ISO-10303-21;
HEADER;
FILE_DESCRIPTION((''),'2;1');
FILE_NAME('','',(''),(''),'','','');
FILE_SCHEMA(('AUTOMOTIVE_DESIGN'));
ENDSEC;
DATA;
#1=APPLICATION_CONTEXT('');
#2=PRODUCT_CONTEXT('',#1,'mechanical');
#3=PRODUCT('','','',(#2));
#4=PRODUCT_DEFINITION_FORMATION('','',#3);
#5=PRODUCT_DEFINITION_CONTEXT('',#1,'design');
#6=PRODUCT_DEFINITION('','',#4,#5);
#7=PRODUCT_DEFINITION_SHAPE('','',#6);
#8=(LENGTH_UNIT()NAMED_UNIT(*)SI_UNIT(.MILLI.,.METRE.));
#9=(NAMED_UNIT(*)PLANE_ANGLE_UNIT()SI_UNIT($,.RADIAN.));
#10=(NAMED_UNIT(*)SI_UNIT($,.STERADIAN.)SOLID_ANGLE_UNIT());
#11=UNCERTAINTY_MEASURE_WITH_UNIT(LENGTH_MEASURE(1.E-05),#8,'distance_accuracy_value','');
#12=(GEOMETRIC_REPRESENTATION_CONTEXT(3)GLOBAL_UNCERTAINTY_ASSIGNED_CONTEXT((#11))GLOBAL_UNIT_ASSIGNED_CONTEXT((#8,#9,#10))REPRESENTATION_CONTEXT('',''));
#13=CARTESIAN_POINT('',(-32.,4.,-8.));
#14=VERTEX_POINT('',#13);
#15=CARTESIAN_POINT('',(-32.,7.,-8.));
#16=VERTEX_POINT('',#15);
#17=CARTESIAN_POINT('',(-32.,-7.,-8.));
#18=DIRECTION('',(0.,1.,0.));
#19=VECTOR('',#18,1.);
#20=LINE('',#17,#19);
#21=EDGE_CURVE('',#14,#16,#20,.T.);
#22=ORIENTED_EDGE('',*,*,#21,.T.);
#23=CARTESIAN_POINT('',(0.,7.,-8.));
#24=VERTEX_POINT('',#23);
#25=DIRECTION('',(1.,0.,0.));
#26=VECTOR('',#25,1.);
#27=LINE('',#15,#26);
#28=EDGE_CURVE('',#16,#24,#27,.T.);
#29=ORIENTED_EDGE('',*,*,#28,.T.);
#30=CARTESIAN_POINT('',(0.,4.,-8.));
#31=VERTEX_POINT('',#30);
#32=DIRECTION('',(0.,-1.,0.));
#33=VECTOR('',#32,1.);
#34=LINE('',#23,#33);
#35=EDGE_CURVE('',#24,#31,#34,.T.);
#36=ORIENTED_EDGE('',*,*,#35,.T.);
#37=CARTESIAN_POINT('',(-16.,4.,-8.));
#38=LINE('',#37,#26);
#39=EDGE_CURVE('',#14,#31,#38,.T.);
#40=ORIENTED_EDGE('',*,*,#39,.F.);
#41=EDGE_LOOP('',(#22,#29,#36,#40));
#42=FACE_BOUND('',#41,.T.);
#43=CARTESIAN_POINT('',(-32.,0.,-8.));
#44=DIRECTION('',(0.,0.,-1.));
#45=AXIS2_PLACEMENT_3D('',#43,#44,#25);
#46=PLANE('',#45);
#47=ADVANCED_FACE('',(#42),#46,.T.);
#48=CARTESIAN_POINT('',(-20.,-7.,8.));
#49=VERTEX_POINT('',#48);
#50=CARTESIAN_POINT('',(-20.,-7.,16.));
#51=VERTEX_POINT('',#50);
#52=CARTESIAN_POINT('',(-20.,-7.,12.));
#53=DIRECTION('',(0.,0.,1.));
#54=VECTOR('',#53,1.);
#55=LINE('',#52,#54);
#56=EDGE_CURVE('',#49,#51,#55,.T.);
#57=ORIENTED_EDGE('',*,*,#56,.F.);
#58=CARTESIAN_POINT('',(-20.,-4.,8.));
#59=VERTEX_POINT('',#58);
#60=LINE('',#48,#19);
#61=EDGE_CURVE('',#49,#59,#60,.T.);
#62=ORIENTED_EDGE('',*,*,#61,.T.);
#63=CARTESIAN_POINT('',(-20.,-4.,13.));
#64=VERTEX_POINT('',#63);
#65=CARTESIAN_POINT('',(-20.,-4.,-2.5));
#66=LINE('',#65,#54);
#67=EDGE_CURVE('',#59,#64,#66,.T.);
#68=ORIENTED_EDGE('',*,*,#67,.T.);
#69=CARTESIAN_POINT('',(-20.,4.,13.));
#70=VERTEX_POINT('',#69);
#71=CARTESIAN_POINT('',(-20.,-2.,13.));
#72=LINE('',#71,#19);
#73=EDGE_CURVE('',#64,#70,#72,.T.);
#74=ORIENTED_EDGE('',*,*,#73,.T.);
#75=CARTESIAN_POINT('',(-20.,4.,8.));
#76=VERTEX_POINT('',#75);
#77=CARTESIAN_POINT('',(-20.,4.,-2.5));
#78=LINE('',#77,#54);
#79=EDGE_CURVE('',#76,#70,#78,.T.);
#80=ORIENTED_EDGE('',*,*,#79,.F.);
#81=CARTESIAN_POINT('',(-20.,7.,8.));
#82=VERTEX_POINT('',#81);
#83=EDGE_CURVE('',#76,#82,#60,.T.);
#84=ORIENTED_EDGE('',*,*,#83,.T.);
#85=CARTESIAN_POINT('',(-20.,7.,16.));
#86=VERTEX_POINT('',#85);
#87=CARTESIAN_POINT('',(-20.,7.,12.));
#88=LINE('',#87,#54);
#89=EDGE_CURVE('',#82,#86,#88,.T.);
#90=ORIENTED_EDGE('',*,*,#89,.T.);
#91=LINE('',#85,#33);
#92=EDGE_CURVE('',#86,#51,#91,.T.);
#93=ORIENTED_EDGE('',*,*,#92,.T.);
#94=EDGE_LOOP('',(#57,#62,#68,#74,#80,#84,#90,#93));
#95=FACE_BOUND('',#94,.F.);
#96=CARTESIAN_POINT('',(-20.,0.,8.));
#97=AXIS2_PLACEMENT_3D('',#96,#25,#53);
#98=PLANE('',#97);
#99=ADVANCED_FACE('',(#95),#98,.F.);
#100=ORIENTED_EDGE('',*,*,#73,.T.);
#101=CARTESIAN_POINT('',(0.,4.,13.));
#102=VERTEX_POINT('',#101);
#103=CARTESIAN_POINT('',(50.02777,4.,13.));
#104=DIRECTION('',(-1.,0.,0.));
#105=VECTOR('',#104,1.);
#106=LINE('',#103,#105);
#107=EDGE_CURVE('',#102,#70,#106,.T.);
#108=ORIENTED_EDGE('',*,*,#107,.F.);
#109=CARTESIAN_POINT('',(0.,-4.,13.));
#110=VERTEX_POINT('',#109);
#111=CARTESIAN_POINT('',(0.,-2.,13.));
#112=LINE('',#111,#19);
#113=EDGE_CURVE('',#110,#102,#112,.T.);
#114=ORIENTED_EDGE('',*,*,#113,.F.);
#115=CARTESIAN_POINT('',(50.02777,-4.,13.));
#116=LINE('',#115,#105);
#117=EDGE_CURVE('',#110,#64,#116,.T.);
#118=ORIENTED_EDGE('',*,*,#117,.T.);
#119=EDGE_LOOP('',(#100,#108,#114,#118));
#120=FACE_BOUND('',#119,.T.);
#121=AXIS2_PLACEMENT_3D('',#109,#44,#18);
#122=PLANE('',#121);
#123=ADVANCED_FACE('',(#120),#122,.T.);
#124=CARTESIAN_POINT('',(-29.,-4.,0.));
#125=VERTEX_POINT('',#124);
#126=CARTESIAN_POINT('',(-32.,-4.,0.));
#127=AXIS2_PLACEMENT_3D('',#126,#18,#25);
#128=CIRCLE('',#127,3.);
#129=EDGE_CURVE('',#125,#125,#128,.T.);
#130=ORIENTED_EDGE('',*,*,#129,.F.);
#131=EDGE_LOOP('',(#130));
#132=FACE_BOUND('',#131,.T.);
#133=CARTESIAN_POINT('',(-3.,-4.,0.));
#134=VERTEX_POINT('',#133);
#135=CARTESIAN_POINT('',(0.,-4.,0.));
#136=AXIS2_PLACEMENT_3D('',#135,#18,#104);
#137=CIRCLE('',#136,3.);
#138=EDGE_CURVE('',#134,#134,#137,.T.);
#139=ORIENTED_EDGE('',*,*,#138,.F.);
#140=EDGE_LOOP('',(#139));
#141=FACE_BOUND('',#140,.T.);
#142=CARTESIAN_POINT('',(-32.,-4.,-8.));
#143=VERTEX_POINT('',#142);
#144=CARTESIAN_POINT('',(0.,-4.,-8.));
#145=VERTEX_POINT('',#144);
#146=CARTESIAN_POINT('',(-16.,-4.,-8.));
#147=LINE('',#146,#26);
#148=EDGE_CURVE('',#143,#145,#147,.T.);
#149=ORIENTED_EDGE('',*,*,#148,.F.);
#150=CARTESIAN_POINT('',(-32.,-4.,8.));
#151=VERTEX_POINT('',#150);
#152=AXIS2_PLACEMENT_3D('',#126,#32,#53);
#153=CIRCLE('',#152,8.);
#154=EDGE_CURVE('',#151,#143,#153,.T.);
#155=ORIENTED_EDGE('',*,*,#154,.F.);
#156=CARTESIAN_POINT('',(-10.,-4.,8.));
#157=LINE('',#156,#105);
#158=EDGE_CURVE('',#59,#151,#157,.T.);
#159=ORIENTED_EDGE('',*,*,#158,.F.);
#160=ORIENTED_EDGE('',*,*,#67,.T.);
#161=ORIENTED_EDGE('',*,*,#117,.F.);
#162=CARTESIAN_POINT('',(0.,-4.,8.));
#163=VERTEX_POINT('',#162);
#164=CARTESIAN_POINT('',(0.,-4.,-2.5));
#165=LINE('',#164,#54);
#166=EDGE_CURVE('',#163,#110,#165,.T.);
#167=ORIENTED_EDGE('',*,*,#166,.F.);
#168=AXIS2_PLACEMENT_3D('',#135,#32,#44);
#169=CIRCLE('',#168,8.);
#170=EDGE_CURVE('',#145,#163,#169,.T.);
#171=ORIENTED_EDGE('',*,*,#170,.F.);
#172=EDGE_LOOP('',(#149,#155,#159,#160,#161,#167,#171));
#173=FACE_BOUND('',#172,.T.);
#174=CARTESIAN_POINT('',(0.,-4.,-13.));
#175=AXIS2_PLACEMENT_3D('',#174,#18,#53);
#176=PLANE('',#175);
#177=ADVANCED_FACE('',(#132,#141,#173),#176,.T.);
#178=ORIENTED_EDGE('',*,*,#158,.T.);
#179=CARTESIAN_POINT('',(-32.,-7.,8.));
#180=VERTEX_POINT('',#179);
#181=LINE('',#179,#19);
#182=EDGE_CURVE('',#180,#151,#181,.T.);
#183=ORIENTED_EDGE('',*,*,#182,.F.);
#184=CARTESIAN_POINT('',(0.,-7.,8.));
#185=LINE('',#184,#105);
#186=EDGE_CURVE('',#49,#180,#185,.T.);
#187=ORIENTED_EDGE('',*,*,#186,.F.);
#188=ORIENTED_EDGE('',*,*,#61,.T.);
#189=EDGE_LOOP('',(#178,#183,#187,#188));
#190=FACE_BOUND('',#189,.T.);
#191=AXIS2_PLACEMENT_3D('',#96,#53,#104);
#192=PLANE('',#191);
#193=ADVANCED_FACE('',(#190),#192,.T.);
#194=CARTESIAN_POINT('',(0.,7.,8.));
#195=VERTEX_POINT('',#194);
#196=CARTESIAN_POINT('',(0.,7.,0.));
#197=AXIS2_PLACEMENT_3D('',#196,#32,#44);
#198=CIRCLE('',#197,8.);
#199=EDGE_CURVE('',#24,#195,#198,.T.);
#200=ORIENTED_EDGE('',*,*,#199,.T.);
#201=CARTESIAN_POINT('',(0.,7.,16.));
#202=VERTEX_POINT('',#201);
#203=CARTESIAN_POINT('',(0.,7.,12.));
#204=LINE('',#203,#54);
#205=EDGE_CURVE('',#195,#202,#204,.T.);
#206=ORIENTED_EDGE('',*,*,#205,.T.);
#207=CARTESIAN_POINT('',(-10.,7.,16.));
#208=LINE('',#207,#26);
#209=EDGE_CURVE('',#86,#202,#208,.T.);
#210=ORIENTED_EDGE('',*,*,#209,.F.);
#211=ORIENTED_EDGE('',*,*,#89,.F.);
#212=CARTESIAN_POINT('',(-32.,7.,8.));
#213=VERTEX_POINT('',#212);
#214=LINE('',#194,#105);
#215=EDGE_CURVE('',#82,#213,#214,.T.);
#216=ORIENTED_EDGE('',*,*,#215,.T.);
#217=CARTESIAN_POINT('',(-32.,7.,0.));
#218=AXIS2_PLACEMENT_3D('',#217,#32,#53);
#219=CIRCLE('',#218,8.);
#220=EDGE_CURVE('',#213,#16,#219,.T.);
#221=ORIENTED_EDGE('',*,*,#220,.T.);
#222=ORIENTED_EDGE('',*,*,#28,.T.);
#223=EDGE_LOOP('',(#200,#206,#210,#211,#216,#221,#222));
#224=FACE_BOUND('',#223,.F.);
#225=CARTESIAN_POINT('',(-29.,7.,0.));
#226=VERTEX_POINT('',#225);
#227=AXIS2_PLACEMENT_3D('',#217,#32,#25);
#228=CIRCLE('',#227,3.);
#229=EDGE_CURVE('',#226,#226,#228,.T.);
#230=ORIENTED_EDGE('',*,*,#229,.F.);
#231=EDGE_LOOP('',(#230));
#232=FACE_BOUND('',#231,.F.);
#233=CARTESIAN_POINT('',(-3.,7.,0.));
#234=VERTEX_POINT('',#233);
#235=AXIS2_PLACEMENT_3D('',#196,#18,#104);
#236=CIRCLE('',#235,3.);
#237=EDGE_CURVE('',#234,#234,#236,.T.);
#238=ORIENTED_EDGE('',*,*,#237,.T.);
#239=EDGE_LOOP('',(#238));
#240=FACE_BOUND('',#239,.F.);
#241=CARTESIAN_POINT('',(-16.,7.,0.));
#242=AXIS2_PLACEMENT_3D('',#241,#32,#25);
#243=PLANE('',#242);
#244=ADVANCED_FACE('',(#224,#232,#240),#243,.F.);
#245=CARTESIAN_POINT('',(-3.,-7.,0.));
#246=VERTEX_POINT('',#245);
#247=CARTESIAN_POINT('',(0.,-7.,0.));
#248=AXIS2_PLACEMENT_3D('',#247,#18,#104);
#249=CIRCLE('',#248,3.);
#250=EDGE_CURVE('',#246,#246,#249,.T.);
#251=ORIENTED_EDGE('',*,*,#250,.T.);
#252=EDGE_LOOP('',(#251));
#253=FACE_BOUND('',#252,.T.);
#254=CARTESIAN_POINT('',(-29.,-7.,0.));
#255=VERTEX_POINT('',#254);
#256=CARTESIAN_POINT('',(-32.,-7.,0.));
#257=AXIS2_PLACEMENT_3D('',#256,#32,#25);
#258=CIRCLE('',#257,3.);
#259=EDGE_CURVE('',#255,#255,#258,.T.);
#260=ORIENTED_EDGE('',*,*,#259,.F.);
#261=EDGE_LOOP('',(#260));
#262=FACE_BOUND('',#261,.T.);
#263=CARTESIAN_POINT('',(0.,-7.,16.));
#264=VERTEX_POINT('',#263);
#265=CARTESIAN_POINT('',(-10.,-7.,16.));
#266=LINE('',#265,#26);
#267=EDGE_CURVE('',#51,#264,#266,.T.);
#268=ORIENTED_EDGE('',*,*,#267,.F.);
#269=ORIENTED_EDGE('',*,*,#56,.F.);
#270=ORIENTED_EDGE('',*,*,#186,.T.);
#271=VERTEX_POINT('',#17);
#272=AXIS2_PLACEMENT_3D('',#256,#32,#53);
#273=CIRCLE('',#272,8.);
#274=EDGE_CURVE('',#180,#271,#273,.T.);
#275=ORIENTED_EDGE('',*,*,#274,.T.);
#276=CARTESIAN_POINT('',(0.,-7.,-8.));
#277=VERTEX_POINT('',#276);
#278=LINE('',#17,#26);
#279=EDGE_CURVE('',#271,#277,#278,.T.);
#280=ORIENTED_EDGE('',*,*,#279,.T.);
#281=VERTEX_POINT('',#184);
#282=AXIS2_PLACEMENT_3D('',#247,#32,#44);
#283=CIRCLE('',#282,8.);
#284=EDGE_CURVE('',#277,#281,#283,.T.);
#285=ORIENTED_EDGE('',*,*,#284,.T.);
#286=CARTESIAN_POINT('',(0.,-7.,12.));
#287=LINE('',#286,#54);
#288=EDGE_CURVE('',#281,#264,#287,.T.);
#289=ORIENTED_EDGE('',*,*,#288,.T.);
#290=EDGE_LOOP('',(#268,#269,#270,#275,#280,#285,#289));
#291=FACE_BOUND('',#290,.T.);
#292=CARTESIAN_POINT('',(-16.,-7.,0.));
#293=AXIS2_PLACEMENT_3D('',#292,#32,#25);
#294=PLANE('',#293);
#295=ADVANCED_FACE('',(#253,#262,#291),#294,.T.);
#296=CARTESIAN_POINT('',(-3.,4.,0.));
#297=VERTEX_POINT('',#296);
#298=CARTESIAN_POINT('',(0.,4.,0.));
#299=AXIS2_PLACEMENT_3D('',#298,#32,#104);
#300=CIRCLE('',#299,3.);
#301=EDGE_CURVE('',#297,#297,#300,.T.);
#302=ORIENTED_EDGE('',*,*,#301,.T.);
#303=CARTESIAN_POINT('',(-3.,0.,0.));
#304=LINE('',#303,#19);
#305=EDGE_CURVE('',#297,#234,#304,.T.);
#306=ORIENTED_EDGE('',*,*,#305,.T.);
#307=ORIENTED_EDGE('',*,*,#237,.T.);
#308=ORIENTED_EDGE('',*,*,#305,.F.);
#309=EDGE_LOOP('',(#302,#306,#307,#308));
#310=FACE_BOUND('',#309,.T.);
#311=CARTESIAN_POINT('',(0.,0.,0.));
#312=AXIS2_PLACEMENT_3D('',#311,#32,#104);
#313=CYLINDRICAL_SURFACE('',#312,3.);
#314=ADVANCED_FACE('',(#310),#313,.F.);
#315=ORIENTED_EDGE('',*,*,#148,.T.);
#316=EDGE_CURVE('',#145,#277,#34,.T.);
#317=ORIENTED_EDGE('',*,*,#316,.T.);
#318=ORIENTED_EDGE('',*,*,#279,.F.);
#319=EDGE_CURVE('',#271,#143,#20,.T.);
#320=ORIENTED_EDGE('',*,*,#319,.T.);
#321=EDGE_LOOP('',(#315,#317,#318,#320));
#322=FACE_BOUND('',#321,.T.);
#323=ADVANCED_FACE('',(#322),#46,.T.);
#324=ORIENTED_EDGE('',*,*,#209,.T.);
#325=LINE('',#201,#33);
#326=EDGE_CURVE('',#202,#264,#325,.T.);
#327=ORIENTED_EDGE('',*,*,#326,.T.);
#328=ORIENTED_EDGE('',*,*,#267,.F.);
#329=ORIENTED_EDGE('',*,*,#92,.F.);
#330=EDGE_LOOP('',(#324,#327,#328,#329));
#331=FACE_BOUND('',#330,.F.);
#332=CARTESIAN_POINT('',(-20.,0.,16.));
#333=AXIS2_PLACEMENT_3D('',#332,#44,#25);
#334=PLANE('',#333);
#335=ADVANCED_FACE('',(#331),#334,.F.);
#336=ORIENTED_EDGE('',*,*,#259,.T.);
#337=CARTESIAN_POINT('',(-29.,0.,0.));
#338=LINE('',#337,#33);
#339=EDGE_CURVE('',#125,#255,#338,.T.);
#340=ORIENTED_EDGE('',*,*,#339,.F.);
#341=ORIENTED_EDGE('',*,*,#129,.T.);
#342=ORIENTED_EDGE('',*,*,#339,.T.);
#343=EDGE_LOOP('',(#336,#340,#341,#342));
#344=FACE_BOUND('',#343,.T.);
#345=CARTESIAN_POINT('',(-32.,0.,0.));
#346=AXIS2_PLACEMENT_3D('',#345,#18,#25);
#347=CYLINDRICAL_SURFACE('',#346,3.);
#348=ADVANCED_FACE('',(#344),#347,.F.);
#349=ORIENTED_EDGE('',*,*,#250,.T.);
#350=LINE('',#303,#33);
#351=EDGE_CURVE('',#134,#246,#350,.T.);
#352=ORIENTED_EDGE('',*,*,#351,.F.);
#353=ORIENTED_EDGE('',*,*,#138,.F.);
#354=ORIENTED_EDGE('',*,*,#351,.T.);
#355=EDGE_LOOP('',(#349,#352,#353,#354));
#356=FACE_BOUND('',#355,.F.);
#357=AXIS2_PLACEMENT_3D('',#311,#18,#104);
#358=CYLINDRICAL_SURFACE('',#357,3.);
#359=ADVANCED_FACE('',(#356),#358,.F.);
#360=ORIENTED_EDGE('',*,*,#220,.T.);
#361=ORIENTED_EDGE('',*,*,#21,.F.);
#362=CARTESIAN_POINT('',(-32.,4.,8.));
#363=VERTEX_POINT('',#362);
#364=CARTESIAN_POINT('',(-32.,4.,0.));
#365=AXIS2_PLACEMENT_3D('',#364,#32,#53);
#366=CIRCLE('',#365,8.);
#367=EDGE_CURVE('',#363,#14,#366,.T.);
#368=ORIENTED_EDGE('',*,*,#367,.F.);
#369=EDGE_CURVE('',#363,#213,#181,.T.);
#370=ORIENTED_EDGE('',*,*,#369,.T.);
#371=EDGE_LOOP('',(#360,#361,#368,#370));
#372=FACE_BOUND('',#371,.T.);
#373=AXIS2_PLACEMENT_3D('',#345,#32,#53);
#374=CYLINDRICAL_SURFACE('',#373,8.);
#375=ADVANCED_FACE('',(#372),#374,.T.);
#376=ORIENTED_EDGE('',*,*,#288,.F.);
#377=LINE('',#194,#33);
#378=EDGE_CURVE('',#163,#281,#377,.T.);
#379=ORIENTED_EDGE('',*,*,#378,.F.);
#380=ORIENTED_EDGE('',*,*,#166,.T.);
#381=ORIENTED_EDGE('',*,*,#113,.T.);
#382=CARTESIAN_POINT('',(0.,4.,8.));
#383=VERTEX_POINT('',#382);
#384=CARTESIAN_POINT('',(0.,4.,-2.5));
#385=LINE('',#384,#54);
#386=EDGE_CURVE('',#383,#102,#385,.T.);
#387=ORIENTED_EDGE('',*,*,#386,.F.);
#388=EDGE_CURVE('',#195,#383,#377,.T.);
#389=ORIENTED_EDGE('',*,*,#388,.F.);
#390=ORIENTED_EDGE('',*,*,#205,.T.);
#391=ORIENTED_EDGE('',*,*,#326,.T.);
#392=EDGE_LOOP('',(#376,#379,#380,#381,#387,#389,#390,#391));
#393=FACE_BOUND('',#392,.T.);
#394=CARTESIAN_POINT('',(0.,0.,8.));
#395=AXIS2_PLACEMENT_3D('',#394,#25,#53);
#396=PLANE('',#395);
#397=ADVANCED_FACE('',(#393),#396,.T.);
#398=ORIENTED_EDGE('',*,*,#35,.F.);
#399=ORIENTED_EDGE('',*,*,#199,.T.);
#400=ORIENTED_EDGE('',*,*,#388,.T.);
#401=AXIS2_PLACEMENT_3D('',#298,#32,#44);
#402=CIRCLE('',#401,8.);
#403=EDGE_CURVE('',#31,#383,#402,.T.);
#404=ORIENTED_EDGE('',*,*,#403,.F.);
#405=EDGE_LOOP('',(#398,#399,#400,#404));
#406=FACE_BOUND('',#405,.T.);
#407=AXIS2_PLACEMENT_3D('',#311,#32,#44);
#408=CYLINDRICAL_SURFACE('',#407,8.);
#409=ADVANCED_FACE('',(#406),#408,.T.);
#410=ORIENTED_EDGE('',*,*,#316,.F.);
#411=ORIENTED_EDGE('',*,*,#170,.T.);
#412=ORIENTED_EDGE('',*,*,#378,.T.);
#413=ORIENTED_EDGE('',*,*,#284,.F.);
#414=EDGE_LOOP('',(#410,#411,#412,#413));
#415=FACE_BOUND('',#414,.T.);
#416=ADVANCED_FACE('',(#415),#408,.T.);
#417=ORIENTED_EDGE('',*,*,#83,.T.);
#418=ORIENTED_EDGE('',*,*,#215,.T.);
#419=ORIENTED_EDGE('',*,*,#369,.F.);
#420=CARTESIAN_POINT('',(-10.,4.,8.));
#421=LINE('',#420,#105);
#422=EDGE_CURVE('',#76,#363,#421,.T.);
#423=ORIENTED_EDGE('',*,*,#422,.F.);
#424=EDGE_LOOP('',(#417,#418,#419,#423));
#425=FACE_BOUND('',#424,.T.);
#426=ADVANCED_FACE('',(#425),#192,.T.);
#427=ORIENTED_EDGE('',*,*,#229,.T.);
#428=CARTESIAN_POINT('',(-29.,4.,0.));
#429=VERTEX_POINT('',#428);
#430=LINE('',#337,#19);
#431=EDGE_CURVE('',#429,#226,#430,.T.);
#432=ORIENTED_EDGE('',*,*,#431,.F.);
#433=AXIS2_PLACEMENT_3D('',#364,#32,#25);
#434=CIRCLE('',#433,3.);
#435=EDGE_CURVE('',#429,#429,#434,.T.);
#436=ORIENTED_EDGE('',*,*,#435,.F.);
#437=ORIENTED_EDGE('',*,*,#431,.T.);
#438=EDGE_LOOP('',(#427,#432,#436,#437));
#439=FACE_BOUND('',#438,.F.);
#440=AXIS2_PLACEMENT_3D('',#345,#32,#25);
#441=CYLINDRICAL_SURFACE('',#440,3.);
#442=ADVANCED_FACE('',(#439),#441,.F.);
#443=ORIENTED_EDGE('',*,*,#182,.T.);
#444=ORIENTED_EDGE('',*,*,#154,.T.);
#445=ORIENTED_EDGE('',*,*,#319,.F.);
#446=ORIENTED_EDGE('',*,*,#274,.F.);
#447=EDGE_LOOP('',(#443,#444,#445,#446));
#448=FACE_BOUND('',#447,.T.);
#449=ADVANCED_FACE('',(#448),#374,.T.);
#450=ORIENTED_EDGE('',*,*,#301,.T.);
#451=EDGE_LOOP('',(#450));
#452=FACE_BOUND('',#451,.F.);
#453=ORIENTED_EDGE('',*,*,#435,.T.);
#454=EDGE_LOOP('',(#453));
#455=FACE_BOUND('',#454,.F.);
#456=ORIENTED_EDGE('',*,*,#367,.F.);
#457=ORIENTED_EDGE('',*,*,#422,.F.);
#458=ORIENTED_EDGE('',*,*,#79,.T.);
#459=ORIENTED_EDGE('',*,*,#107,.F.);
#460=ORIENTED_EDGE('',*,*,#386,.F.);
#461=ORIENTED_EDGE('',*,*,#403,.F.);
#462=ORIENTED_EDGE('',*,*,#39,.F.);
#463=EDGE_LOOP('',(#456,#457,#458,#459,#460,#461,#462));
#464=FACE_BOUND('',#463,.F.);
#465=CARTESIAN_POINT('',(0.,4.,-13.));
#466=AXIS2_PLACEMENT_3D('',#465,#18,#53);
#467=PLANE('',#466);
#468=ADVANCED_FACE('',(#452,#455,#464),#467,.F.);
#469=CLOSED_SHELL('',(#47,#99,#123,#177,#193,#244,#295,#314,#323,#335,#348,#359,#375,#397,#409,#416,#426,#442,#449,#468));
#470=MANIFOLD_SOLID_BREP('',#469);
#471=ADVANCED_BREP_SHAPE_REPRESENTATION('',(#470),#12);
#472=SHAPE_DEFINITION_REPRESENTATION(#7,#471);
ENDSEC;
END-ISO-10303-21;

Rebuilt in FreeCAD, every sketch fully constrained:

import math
import FreeCAD as App
import Part
import Sketcher
from FreeCAD import Vector
Q = App.Units.Quantity

doc = App.newDocument("Part")
params = doc.addObject("Spreadsheet::Sheet", "Params")
for row, (alias, value) in enumerate([
    ("sketch1_diameter", "6 mm"),
    ("sketch1_radius", "8 mm"),
    ("sketch1_width", "32 mm"),
    ("sketch1_width2", "20 mm"),
    ("sketch1_height", "8 mm"),
    ("pad1_length", "14 mm"),
    ("sketch2_width", "8 mm"),
    ("sketch2_height", "26 mm"),
    ("pocket1_length", "100.05554 mm"),
], start=1):
    params.set(f"A{row}", alias)
    params.set(f"B{row}", "=" + value)
    params.setAlias(f"B{row}", alias)

body = doc.addObject("PartDesign::Body", "Body")

sketch1 = body.newObject("Sketcher::SketchObject", "Sketch")
sketch1.AttachmentSupport = (doc.getObject("XZ_Plane"), [""])
sketch1.MapMode = "FlatFace"
sketch1.addGeometry([
    Part.LineSegment(Vector(-32, -8, 0), Vector(0, -8, 0)),
    Part.ArcOfCircle(Part.Circle(Vector(0, 0, 0), Vector(0, 0, 1), 8), math.radians(-90), math.radians(90)),
    Part.LineSegment(Vector(0, 8, 0), Vector(0, 16, 0)),
    Part.LineSegment(Vector(0, 16, 0), Vector(-20, 16, 0)),
    Part.LineSegment(Vector(-20, 16, 0), Vector(-20, 8, 0)),
    Part.LineSegment(Vector(-20, 8, 0), Vector(-32, 8, 0)),
    Part.ArcOfCircle(Part.Circle(Vector(-32, 0, 0), Vector(0, 0, 1), 8), math.radians(90), math.radians(270)),
    Part.Circle(Vector(-32, 0, 0), Vector(0, 0, 1), 3),
    Part.Circle(Vector(0, 0, 0), Vector(0, 0, 1), 3),
], False)
sketch1.addConstraint([
    Sketcher.Constraint("Tangent", 0, 2, 1, 1),
    Sketcher.Constraint("Coincident", 1, 2, 2, 1),
    Sketcher.Constraint("Coincident", 2, 2, 3, 1),
    Sketcher.Constraint("Coincident", 3, 2, 4, 1),
    Sketcher.Constraint("Coincident", 4, 2, 5, 1),
    Sketcher.Constraint("Tangent", 5, 2, 6, 1),
    Sketcher.Constraint("Tangent", 6, 2, 0, 1),
    Sketcher.Constraint("Horizontal", 0),
    Sketcher.Constraint("Vertical", 2),
    Sketcher.Constraint("Horizontal", 3),
    Sketcher.Constraint("Vertical", 4),
    Sketcher.Constraint("Horizontal", 5),
    Sketcher.Constraint("Coincident", 1, 3, -1, 1),
    Sketcher.Constraint("Coincident", 8, 3, -1, 1),
    Sketcher.Constraint("Coincident", 7, 3, 6, 3),
    Sketcher.Constraint("Equal", 1, 6),
    Sketcher.Constraint("Equal", 7, 8),
    Sketcher.Constraint("PointOnObject", 1, 2, -2),
    Sketcher.Constraint("Diameter", 7, Q("6 mm")),
    Sketcher.Constraint("Radius", 1, Q("8 mm")),
    Sketcher.Constraint("DistanceX", 0, 1, 0, 2, Q("32 mm")),
    Sketcher.Constraint("DistanceX", 3, 2, 3, 1, Q("20 mm")),
    Sketcher.Constraint("DistanceY", 2, 1, 2, 2, Q("8 mm")),
])
sketch1.setExpression("Constraints[18]", "Params.sketch1_diameter")
sketch1.setExpression("Constraints[19]", "Params.sketch1_radius")
sketch1.setExpression("Constraints[20]", "Params.sketch1_width")
sketch1.setExpression("Constraints[21]", "Params.sketch1_width2")
sketch1.setExpression("Constraints[22]", "Params.sketch1_height")
pad1 = body.newObject("PartDesign::Pad", "Pad")
pad1.Profile = sketch1
pad1.setExpression("Length", "Params.pad1_length")
pad1.Midplane = True

sketch2 = body.newObject("Sketcher::SketchObject", "Sketch001")
sketch2.AttachmentSupport = (doc.getObject("YZ_Plane"), [""])
sketch2.MapMode = "FlatFace"
sketch2.addGeometry([
    Part.LineSegment(Vector(-4, 13, 0), Vector(-4, -13, 0)),
    Part.LineSegment(Vector(-4, -13, 0), Vector(4, -13, 0)),
    Part.LineSegment(Vector(4, -13, 0), Vector(4, 13, 0)),
    Part.LineSegment(Vector(4, 13, 0), Vector(-4, 13, 0)),
], False)
sketch2.addConstraint([
    Sketcher.Constraint("Coincident", 0, 2, 1, 1),
    Sketcher.Constraint("Coincident", 1, 2, 2, 1),
    Sketcher.Constraint("Coincident", 2, 2, 3, 1),
    Sketcher.Constraint("Coincident", 3, 2, 0, 1),
    Sketcher.Constraint("Vertical", 0),
    Sketcher.Constraint("Horizontal", 1),
    Sketcher.Constraint("Vertical", 2),
    Sketcher.Constraint("Horizontal", 3),
    Sketcher.Constraint("Symmetric", 0, 2, 2, 2, -1, 1),
    Sketcher.Constraint("DistanceX", 1, 1, 1, 2, Q("8 mm")),
    Sketcher.Constraint("DistanceY", 0, 2, 0, 1, Q("26 mm")),
])
sketch2.setExpression("Constraints[9]", "Params.sketch2_width")
sketch2.setExpression("Constraints[10]", "Params.sketch2_height")
pocket1 = body.newObject("PartDesign::Pocket", "Pocket")
pocket1.Profile = sketch2
pocket1.setExpression("Length", "Params.pocket1_length")
pocket1.Midplane = True

doc.recompute()
